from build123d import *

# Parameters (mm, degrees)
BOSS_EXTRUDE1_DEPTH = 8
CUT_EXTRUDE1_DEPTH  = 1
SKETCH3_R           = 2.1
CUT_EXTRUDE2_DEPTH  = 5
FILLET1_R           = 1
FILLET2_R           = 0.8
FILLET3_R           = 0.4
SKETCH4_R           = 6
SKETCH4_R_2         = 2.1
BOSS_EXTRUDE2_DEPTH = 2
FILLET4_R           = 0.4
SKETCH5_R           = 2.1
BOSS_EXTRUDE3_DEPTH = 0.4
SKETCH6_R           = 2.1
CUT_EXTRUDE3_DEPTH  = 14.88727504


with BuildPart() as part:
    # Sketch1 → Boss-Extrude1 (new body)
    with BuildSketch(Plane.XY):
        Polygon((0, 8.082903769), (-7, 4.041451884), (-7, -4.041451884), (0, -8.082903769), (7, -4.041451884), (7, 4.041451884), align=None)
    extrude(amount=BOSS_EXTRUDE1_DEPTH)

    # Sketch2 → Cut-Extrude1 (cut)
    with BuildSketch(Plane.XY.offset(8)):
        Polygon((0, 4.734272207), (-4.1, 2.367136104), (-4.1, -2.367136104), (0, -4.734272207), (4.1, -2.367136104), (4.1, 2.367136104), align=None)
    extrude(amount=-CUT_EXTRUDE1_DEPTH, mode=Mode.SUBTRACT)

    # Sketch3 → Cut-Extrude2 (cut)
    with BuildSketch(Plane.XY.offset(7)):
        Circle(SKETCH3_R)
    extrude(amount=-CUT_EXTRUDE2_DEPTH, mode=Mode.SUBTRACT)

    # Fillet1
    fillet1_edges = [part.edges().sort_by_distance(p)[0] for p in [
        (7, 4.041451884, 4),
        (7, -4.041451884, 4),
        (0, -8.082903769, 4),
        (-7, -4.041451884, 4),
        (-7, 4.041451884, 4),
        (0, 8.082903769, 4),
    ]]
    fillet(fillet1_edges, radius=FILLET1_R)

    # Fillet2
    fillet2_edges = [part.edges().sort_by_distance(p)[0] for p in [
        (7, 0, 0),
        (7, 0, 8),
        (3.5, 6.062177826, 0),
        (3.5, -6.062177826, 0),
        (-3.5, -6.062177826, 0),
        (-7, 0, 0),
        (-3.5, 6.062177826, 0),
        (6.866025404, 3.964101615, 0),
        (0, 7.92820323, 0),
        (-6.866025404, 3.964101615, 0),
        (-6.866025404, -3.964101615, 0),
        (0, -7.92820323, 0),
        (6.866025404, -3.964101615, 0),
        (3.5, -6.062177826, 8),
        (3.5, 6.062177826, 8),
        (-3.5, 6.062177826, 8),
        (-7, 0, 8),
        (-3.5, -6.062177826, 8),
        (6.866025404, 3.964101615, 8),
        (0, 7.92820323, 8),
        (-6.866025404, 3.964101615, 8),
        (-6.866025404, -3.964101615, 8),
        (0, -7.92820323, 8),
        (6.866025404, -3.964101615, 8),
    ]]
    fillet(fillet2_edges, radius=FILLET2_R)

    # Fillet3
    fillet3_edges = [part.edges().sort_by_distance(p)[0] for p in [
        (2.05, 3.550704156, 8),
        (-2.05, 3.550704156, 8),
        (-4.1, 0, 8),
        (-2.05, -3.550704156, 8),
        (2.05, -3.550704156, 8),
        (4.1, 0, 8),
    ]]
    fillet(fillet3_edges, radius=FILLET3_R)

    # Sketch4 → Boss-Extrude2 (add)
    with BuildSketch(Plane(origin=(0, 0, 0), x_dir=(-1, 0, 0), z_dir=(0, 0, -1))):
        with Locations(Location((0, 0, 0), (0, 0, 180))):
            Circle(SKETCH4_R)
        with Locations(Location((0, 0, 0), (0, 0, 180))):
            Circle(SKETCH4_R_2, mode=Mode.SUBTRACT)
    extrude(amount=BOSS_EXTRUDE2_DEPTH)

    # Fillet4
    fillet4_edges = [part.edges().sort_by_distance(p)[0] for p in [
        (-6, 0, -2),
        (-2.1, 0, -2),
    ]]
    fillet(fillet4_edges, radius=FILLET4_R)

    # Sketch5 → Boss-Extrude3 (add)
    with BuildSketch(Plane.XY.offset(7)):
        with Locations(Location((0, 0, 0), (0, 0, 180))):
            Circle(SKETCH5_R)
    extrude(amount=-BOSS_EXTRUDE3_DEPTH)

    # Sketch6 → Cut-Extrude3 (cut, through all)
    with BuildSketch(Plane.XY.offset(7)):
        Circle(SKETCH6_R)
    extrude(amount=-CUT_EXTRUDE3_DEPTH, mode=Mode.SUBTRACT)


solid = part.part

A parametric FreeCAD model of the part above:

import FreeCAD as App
import Part
import Sketcher
from FreeCAD import Vector
Q = App.Units.Quantity


def edges_at(feature, points):
    """Names of the edges that pass closest to the given points."""
    edges = feature.Shape.Edges
    near = lambda p: min(range(len(edges)), key=lambda i: edges[i].distToShape(Part.Vertex(*p))[0])
    return sorted({f"Edge{near(p) + 1}" for p in points})

doc = App.newDocument("Part")
body = doc.addObject("PartDesign::Body", "Body")

# Sketch on XY plane
sketch1 = body.newObject("Sketcher::SketchObject", "Sketch")
sketch1.AttachmentSupport = (doc.getObject("XY_Plane"), [""])
sketch1.MapMode = "FlatFace"
sketch1.addGeometry(Part.LineSegment(Vector(0, 8.082904, 0), Vector(-7, 4.041452, 0)), False)
sketch1.addGeometry(Part.LineSegment(Vector(-7, 4.041452, 0), Vector(-7, -4.041452, 0)), False)
sketch1.addGeometry(Part.LineSegment(Vector(-7, -4.041452, 0), Vector(0, -8.082904, 0)), False)
sketch1.addGeometry(Part.LineSegment(Vector(0, -8.082904, 0), Vector(7, -4.041452, 0)), False)
sketch1.addGeometry(Part.LineSegment(Vector(7, -4.041452, 0), Vector(7, 4.041452, 0)), False)
sketch1.addGeometry(Part.LineSegment(Vector(7, 4.041452, 0), Vector(0, 8.082904, 0)), False)
sketch1.addConstraint(Sketcher.Constraint("Coincident", 0, 2, 1, 1))
sketch1.addConstraint(Sketcher.Constraint("Coincident", 1, 2, 2, 1))
sketch1.addConstraint(Sketcher.Constraint("Coincident", 2, 2, 3, 1))
sketch1.addConstraint(Sketcher.Constraint("Coincident", 3, 2, 4, 1))
sketch1.addConstraint(Sketcher.Constraint("Coincident", 4, 2, 5, 1))
sketch1.addConstraint(Sketcher.Constraint("Coincident", 5, 2, 0, 1))
sketch1.addConstraint(Sketcher.Constraint("Vertical", 1))
sketch1.addConstraint(Sketcher.Constraint("Vertical", 4))
sketch1.addConstraint(Sketcher.Constraint("Symmetric", 0, 2, 3, 2, -1, 1))
sketch1.addConstraint(Sketcher.Constraint("Symmetric", 2, 2, 5, 2, -1, 1))
sketch1.addConstraint(Sketcher.Constraint("PointOnObject", 2, 2, -2))
sketch1.addConstraint(Sketcher.Constraint("Parallel", 2, 5))
sketch1.addConstraint(Sketcher.Constraint("Horizontal", 1, 2, 3, 2))
sketch1.addConstraint(Sketcher.Constraint("Angle", 0, Q("-150 deg")))
sketch1.addConstraint(Sketcher.Constraint("DistanceX", 0, 2, -1, 1, 7.0))
sketch1.addConstraint(Sketcher.Constraint("DistanceY", 1, 2, 1, 1, 8.082904))
pad1 = body.newObject("PartDesign::Pad", "Pad")
pad1.Profile = sketch1
pad1.Length = 8

# Sketch on XY plane
sketch2 = body.newObject("Sketcher::SketchObject", "Sketch001")
sketch2.AttachmentSupport = (doc.getObject("XY_Plane"), [""])
sketch2.MapMode = "FlatFace"
sketch2.AttachmentOffset = App.Placement(Vector(0, 0, 8), App.Rotation())
sketch2.addGeometry(Part.LineSegment(Vector(0, 4.734272, 0), Vector(-4.1, 2.367136, 0)), False)
sketch2.addGeometry(Part.LineSegment(Vector(-4.1, 2.367136, 0), Vector(-4.1, -2.367136, 0)), False)
sketch2.addGeometry(Part.LineSegment(Vector(-4.1, -2.367136, 0), Vector(0, -4.734272, 0)), False)
sketch2.addGeometry(Part.LineSegment(Vector(0, -4.734272, 0), Vector(4.1, -2.367136, 0)), False)
sketch2.addGeometry(Part.LineSegment(Vector(4.1, -2.367136, 0), Vector(4.1, 2.367136, 0)), False)
sketch2.addGeometry(Part.LineSegment(Vector(4.1, 2.367136, 0), Vector(0, 4.734272, 0)), False)
sketch2.addConstraint(Sketcher.Constraint("Coincident", 0, 2, 1, 1))
sketch2.addConstraint(Sketcher.Constraint("Coincident", 1, 2, 2, 1))
sketch2.addConstraint(Sketcher.Constraint("Coincident", 2, 2, 3, 1))
sketch2.addConstraint(Sketcher.Constraint("Coincident", 3, 2, 4, 1))
sketch2.addConstraint(Sketcher.Constraint("Coincident", 4, 2, 5, 1))
sketch2.addConstraint(Sketcher.Constraint("Coincident", 5, 2, 0, 1))
sketch2.addConstraint(Sketcher.Constraint("Vertical", 1))
sketch2.addConstraint(Sketcher.Constraint("Vertical", 4))
sketch2.addConstraint(Sketcher.Constraint("Symmetric", 0, 2, 3, 2, -1, 1))
sketch2.addConstraint(Sketcher.Constraint("Symmetric", 2, 2, 5, 2, -1, 1))
sketch2.addConstraint(Sketcher.Constraint("PointOnObject", 2, 2, -2))
sketch2.addConstraint(Sketcher.Constraint("Parallel", 2, 5))
sketch2.addConstraint(Sketcher.Constraint("Horizontal", 1, 2, 3, 2))
sketch2.addConstraint(Sketcher.Constraint("Angle", 0, Q("-150 deg")))
sketch2.addConstraint(Sketcher.Constraint("DistanceX", 0, 2, -1, 1, 4.1))
sketch2.addConstraint(Sketcher.Constraint("DistanceY", 1, 2, 1, 1, 4.734272))
pocket1 = body.newObject("PartDesign::Pocket", "Pocket")
pocket1.Profile = sketch2
pocket1.Length = 1

# Sketch on XY plane
sketch3 = body.newObject("Sketcher::SketchObject", "Sketch002")
sketch3.AttachmentSupport = (doc.getObject("XY_Plane"), [""])
sketch3.MapMode = "FlatFace"
sketch3.AttachmentOffset = App.Placement(Vector(0, 0, 7), App.Rotation())
sketch3.addGeometry(Part.Circle(Vector(0, 0, 0), Vector(0, 0, 1), 2.1), False)
sketch3.addConstraint(Sketcher.Constraint("Coincident", 0, 3, -1, 1))
sketch3.addConstraint(Sketcher.Constraint("Diameter", 0, 4.2))
pocket2 = body.newObject("PartDesign::Pocket", "Pocket001")
pocket2.Profile = sketch3
pocket2.Length = 5
doc.recompute()

fillet = body.newObject("PartDesign::Fillet", "Fillet")
fillet.Base = (pocket2, edges_at(pocket2, [
    (7, 4.041, 4),
    (7, -4.041, 4),
    (0, -8.083, 4),
    (-7, -4.041, 4),
    (-7, 4.041, 4),
    (0, 8.083, 4),
]))
fillet.Radius = 1
doc.recompute()

fillet2 = body.newObject("PartDesign::Fillet", "Fillet001")
fillet2.Base = (fillet, edges_at(fillet, [
    (7, 0, 0),
    (7, 0, 8),
    (3.5, 6.062, 0),
    (3.5, -6.062, 0),
    (-3.5, -6.062, 0),
    (-7, 0, 0),
    (-3.5, 6.062, 0),
    (6.866, 3.964, 0),
    (0, 7.928, 0),
    (-6.866, 3.964, 0),
    (-6.866, -3.964, 0),
    (0, -7.928, 0),
    (6.866, -3.964, 0),
    (3.5, -6.062, 8),
    (3.5, 6.062, 8),
    (-3.5, 6.062, 8),
    (-7, 0, 8),
    (-3.5, -6.062, 8),
    (6.866, 3.964, 8),
    (0, 7.928, 8),
    (-6.866, 3.964, 8),
    (-6.866, -3.964, 8),
    (0, -7.928, 8),
    (6.866, -3.964, 8),
]))
fillet2.Radius = 0.8
doc.recompute()

fillet3 = body.newObject("PartDesign::Fillet", "Fillet002")
fillet3.Base = (fillet2, edges_at(fillet2, [
    (2.05, 3.551, 8),
    (-2.05, 3.551, 8),
    (-4.1, 0, 8),
    (-2.05, -3.551, 8),
    (2.05, -3.551, 8),
    (4.1, 0, 8),
]))
fillet3.Radius = 0.4

# Sketch on XY plane
sketch4 = body.newObject("Sketcher::SketchObject", "Sketch003")
sketch4.AttachmentSupport = (doc.getObject("XY_Plane"), [""])
sketch4.MapMode = "FlatFace"
sketch4.addGeometry(Part.Circle(Vector(0, 0, 0), Vector(0, 0, 1), 6), False)
sketch4.addGeometry(Part.Circle(Vector(0, 0, 0), Vector(0, 0, 1), 2.1), False)
sketch4.addConstraint(Sketcher.Constraint("Coincident", 0, 3, -1, 1))
sketch4.addConstraint(Sketcher.Constraint("Coincident", 1, 3, -1, 1))
sketch4.addConstraint(Sketcher.Constraint("Diameter", 0, 12.0))
sketch4.addConstraint(Sketcher.Constraint("Diameter", 1, 4.2))
pad2 = body.newObject("PartDesign::Pad", "Pad001")
pad2.Profile = sketch4
pad2.Length = 2
pad2.Reversed = True
doc.recompute()

fillet4 = body.newObject("PartDesign::Fillet", "Fillet003")
fillet4.Base = (pad2, edges_at(pad2, [(-6, 0, -2), (-2.1, 0, -2)]))
fillet4.Radius = 0.4

# Sketch on XY plane
sketch5 = body.newObject("Sketcher::SketchObject", "Sketch004")
sketch5.AttachmentSupport = (doc.getObject("XY_Plane"), [""])
sketch5.MapMode = "FlatFace"
sketch5.AttachmentOffset = App.Placement(Vector(0, 0, 7), App.Rotation())
sketch5.addGeometry(Part.Circle(Vector(0, 0, 0), Vector(0, 0, 1), 2.1), False)
sketch5.addConstraint(Sketcher.Constraint("Coincident", 0, 3, -1, 1))
sketch5.addConstraint(Sketcher.Constraint("Diameter", 0, 4.2))
pad3 = body.newObject("PartDesign::Pad", "Pad002")
pad3.Profile = sketch5
pad3.Length = 0.4
pad3.Reversed = True

# Sketch on XY plane
sketch6 = body.newObject("Sketcher::SketchObject", "Sketch005")
sketch6.AttachmentSupport = (doc.getObject("XY_Plane"), [""])
sketch6.MapMode = "FlatFace"
sketch6.AttachmentOffset = App.Placement(Vector(0, 0, 7), App.Rotation())
sketch6.addGeometry(Part.Circle(Vector(0, 0, 0), Vector(0, 0, 1), 2.1), False)
sketch6.addConstraint(Sketcher.Constraint("Coincident", 0, 3, -1, 1))
sketch6.addConstraint(Sketcher.Constraint("Diameter", 0, 4.2))
pocket3 = body.newObject("PartDesign::Pocket", "Pocket002")
pocket3.Profile = sketch6
pocket3.Type = "ThroughAll"

doc.recompute()
